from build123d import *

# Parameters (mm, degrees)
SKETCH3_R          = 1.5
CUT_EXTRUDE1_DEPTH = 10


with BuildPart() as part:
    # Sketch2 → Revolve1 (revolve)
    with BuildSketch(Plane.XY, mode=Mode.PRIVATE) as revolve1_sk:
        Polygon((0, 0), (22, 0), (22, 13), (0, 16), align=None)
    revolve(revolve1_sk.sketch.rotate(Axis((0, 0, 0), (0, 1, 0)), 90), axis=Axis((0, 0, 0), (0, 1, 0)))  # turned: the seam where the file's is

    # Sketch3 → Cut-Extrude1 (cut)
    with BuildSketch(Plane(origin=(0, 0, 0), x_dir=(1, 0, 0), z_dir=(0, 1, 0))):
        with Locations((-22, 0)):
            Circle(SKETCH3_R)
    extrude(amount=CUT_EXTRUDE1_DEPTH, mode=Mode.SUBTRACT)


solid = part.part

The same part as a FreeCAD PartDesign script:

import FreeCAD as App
import Part
import Sketcher
from FreeCAD import Vector
Q = App.Units.Quantity


def add_polygon(sketch, points):
    """Adds a closed chain of lines whose ends are joined by coincident constraints."""
    first, n = sketch.GeometryCount, len(points)
    for a, b in zip(points, points[1:] + points[:1]):
        sketch.addGeometry(Part.LineSegment(App.Vector(*a, 0), App.Vector(*b, 0)), False)
    for i in range(n):
        sketch.addConstraint(Sketcher.Constraint("Coincident", first + i, 2, first + (i + 1) % n, 1))

doc = App.newDocument("Part")
body = doc.addObject("PartDesign::Body", "Body")

# Sketch on XY plane
sketch1 = doc.addObject("Sketcher::SketchObject", "Sketch")
body.addObject(sketch1)
sketch1.AttachmentSupport = (doc.XY_Plane, [""])
sketch1.MapMode = "FlatFace"
add_polygon(sketch1, [(0, 0), (22, 0), (22, 13), (0, 16)])  # lines 0-3
sketch1.addConstraint([
    Sketcher.Constraint("Horizontal", 0),
    Sketcher.Constraint("Vertical", 1),
    Sketcher.Constraint("Vertical", 3),
    Sketcher.Constraint("Coincident", 3, 2, -1, 1),
    Sketcher.Constraint("DistanceX", 0, 1, 0, 2, Q("22 mm")),
    Sketcher.Constraint("DistanceY", 1, 1, 1, 2, Q("13 mm")),
    Sketcher.Constraint("DistanceY", 3, 2, 3, 1, Q("16 mm")),
])
revolution = doc.addObject("PartDesign::Revolution", "Revolution")
body.addObject(revolution)
revolution.Profile = sketch1
revolution.ReferenceAxis = (sketch1, ["V_Axis"])
revolution.Angle = 360

# Sketch on XZ plane
sketch2 = doc.addObject("Sketcher::SketchObject", "Sketch001")
body.addObject(sketch2)
sketch2.AttachmentSupport = (doc.XZ_Plane, [""])
sketch2.MapMode = "FlatFace"
sketch2.addGeometry(Part.Circle(Vector(-22, 0, 0), Vector(0, 0, 1), 1.5), False)
sketch2.addConstraint([
    Sketcher.Constraint("PointOnObject", 0, 3, -1),
    Sketcher.Constraint("Diameter", 0, Q("3 mm")),
    Sketcher.Constraint("DistanceX", 0, 3, -1, 1, Q("22 mm")),
])
pocket1 = doc.addObject("PartDesign::Pocket", "Pocket")
body.addObject(pocket1)
pocket1.Profile = sketch2
pocket1.Length = 10

doc.recompute()
